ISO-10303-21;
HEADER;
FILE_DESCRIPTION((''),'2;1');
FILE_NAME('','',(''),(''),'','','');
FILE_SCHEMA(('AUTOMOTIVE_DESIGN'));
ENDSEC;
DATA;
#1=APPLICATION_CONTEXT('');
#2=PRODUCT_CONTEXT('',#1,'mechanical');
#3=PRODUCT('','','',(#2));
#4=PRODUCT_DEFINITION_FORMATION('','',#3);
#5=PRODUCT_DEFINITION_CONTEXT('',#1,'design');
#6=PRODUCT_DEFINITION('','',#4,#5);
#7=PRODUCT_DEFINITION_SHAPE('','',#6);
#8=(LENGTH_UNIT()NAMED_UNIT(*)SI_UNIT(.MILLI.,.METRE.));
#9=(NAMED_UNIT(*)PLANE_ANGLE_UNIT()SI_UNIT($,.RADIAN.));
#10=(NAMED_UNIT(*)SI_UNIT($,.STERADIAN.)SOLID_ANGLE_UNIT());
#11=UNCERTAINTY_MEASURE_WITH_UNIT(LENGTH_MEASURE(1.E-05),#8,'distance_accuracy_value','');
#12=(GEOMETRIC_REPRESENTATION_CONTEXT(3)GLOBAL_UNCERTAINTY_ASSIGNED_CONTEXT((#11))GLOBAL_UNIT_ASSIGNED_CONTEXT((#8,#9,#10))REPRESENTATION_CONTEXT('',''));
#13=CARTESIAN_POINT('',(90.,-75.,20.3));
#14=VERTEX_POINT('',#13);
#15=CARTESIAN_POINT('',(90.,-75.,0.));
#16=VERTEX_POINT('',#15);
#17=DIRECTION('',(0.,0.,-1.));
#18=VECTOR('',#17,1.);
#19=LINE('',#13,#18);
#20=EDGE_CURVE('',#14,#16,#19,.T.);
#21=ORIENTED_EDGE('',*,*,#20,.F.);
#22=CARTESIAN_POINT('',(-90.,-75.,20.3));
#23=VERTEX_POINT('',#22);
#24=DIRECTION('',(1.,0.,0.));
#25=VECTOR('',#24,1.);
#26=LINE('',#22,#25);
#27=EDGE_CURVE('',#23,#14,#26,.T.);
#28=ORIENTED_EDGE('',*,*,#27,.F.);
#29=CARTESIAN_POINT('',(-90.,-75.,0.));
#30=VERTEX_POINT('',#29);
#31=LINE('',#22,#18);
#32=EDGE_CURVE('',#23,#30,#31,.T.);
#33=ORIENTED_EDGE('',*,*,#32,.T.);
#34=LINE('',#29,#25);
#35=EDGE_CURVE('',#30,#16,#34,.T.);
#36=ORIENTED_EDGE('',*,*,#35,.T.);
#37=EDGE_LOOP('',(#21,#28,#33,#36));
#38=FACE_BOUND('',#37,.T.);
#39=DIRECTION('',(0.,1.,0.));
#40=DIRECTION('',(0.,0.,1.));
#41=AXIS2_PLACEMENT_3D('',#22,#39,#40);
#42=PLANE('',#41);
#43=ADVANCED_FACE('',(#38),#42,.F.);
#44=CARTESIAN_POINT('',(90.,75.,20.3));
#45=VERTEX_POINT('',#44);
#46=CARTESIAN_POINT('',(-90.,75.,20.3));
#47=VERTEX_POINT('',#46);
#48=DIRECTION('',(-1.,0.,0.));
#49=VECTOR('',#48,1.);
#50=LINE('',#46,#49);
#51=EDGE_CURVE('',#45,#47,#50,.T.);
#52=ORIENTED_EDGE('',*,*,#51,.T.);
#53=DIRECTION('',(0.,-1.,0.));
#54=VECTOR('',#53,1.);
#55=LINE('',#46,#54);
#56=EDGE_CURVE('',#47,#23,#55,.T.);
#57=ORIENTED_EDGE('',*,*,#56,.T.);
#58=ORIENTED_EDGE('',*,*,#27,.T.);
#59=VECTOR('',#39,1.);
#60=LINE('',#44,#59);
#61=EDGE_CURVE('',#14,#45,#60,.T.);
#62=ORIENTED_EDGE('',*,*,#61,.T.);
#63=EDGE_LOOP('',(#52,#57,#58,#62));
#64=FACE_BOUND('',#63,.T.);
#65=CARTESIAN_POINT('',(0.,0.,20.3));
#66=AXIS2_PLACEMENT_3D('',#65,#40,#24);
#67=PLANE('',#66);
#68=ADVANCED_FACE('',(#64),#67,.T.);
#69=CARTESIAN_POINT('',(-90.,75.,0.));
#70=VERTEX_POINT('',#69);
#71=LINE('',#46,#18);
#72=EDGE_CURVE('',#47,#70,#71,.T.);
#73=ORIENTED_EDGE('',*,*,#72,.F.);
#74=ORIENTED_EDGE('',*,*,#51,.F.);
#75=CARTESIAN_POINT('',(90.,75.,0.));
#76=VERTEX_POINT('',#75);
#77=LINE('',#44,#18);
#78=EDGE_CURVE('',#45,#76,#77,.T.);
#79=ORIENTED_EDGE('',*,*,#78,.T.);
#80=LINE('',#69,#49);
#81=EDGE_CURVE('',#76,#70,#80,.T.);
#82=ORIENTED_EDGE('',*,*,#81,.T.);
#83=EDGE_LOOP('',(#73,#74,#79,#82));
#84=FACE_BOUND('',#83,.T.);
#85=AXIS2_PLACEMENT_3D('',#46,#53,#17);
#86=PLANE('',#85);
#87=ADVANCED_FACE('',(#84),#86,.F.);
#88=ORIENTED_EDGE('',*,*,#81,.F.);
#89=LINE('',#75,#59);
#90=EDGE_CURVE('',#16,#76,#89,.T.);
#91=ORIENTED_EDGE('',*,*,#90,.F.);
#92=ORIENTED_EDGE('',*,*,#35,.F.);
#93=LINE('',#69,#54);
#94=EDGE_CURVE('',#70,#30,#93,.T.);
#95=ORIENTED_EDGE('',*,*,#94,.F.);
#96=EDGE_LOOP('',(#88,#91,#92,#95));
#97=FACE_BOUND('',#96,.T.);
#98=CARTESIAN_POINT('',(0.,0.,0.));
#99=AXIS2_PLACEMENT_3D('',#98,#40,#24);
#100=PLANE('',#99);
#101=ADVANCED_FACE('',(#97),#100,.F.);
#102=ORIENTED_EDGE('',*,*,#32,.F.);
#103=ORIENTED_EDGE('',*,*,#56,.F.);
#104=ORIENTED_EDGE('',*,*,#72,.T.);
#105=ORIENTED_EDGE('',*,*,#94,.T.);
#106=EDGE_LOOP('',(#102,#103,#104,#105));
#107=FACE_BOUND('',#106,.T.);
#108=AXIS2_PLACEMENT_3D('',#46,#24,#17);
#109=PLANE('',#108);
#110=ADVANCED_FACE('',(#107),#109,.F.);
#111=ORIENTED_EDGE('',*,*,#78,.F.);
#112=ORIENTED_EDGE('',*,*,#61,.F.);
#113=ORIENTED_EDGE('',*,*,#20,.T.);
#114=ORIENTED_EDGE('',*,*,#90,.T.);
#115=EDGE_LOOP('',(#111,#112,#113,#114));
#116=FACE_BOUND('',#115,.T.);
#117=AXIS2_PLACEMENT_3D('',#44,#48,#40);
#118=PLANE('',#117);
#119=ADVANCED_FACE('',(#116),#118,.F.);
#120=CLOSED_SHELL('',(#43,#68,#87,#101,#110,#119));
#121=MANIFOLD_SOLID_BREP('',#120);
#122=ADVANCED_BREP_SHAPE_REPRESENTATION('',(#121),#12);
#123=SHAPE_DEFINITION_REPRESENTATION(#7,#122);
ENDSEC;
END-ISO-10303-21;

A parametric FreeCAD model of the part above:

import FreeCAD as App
import Part
import Sketcher


def add_polygon(sketch, points):
    """Adds a closed chain of lines whose ends are joined by coincident constraints."""
    first, n = sketch.GeometryCount, len(points)
    for a, b in zip(points, points[1:] + points[:1]):
        sketch.addGeometry(Part.LineSegment(App.Vector(*a, 0), App.Vector(*b, 0)), False)
    for i in range(n):
        sketch.addConstraint(Sketcher.Constraint("Coincident", first + i, 2, first + (i + 1) % n, 1))

doc = App.newDocument("Part")
body = doc.addObject("PartDesign::Body", "Body")

# Sketch on XY plane
sketch1 = doc.addObject("Sketcher::SketchObject", "Sketch")
body.addObject(sketch1)
sketch1.AttachmentSupport = (doc.XY_Plane, [""])
sketch1.MapMode = "FlatFace"
add_polygon(sketch1, [(-90, 75), (-90, -75), (90, -75), (90, 75)])  # lines 0-3
sketch1.addConstraint(Sketcher.Constraint("Vertical", 0))
sketch1.addConstraint(Sketcher.Constraint("Horizontal", 1))
sketch1.addConstraint(Sketcher.Constraint("Vertical", 2))
sketch1.addConstraint(Sketcher.Constraint("Horizontal", 3))
sketch1.addConstraint(Sketcher.Constraint("Symmetric", 0, 2, 2, 2, -1, 1))
sketch1.addConstraint(Sketcher.Constraint("DistanceX", 1, 1, 1, 2, 180.0))
sketch1.addConstraint(Sketcher.Constraint("DistanceY", 0, 2, 0, 1, 150.0))
pad1 = doc.addObject("PartDesign::Pad", "Pad")
body.addObject(pad1)
pad1.Profile = sketch1
pad1.Length = 20.3

doc.recompute()
